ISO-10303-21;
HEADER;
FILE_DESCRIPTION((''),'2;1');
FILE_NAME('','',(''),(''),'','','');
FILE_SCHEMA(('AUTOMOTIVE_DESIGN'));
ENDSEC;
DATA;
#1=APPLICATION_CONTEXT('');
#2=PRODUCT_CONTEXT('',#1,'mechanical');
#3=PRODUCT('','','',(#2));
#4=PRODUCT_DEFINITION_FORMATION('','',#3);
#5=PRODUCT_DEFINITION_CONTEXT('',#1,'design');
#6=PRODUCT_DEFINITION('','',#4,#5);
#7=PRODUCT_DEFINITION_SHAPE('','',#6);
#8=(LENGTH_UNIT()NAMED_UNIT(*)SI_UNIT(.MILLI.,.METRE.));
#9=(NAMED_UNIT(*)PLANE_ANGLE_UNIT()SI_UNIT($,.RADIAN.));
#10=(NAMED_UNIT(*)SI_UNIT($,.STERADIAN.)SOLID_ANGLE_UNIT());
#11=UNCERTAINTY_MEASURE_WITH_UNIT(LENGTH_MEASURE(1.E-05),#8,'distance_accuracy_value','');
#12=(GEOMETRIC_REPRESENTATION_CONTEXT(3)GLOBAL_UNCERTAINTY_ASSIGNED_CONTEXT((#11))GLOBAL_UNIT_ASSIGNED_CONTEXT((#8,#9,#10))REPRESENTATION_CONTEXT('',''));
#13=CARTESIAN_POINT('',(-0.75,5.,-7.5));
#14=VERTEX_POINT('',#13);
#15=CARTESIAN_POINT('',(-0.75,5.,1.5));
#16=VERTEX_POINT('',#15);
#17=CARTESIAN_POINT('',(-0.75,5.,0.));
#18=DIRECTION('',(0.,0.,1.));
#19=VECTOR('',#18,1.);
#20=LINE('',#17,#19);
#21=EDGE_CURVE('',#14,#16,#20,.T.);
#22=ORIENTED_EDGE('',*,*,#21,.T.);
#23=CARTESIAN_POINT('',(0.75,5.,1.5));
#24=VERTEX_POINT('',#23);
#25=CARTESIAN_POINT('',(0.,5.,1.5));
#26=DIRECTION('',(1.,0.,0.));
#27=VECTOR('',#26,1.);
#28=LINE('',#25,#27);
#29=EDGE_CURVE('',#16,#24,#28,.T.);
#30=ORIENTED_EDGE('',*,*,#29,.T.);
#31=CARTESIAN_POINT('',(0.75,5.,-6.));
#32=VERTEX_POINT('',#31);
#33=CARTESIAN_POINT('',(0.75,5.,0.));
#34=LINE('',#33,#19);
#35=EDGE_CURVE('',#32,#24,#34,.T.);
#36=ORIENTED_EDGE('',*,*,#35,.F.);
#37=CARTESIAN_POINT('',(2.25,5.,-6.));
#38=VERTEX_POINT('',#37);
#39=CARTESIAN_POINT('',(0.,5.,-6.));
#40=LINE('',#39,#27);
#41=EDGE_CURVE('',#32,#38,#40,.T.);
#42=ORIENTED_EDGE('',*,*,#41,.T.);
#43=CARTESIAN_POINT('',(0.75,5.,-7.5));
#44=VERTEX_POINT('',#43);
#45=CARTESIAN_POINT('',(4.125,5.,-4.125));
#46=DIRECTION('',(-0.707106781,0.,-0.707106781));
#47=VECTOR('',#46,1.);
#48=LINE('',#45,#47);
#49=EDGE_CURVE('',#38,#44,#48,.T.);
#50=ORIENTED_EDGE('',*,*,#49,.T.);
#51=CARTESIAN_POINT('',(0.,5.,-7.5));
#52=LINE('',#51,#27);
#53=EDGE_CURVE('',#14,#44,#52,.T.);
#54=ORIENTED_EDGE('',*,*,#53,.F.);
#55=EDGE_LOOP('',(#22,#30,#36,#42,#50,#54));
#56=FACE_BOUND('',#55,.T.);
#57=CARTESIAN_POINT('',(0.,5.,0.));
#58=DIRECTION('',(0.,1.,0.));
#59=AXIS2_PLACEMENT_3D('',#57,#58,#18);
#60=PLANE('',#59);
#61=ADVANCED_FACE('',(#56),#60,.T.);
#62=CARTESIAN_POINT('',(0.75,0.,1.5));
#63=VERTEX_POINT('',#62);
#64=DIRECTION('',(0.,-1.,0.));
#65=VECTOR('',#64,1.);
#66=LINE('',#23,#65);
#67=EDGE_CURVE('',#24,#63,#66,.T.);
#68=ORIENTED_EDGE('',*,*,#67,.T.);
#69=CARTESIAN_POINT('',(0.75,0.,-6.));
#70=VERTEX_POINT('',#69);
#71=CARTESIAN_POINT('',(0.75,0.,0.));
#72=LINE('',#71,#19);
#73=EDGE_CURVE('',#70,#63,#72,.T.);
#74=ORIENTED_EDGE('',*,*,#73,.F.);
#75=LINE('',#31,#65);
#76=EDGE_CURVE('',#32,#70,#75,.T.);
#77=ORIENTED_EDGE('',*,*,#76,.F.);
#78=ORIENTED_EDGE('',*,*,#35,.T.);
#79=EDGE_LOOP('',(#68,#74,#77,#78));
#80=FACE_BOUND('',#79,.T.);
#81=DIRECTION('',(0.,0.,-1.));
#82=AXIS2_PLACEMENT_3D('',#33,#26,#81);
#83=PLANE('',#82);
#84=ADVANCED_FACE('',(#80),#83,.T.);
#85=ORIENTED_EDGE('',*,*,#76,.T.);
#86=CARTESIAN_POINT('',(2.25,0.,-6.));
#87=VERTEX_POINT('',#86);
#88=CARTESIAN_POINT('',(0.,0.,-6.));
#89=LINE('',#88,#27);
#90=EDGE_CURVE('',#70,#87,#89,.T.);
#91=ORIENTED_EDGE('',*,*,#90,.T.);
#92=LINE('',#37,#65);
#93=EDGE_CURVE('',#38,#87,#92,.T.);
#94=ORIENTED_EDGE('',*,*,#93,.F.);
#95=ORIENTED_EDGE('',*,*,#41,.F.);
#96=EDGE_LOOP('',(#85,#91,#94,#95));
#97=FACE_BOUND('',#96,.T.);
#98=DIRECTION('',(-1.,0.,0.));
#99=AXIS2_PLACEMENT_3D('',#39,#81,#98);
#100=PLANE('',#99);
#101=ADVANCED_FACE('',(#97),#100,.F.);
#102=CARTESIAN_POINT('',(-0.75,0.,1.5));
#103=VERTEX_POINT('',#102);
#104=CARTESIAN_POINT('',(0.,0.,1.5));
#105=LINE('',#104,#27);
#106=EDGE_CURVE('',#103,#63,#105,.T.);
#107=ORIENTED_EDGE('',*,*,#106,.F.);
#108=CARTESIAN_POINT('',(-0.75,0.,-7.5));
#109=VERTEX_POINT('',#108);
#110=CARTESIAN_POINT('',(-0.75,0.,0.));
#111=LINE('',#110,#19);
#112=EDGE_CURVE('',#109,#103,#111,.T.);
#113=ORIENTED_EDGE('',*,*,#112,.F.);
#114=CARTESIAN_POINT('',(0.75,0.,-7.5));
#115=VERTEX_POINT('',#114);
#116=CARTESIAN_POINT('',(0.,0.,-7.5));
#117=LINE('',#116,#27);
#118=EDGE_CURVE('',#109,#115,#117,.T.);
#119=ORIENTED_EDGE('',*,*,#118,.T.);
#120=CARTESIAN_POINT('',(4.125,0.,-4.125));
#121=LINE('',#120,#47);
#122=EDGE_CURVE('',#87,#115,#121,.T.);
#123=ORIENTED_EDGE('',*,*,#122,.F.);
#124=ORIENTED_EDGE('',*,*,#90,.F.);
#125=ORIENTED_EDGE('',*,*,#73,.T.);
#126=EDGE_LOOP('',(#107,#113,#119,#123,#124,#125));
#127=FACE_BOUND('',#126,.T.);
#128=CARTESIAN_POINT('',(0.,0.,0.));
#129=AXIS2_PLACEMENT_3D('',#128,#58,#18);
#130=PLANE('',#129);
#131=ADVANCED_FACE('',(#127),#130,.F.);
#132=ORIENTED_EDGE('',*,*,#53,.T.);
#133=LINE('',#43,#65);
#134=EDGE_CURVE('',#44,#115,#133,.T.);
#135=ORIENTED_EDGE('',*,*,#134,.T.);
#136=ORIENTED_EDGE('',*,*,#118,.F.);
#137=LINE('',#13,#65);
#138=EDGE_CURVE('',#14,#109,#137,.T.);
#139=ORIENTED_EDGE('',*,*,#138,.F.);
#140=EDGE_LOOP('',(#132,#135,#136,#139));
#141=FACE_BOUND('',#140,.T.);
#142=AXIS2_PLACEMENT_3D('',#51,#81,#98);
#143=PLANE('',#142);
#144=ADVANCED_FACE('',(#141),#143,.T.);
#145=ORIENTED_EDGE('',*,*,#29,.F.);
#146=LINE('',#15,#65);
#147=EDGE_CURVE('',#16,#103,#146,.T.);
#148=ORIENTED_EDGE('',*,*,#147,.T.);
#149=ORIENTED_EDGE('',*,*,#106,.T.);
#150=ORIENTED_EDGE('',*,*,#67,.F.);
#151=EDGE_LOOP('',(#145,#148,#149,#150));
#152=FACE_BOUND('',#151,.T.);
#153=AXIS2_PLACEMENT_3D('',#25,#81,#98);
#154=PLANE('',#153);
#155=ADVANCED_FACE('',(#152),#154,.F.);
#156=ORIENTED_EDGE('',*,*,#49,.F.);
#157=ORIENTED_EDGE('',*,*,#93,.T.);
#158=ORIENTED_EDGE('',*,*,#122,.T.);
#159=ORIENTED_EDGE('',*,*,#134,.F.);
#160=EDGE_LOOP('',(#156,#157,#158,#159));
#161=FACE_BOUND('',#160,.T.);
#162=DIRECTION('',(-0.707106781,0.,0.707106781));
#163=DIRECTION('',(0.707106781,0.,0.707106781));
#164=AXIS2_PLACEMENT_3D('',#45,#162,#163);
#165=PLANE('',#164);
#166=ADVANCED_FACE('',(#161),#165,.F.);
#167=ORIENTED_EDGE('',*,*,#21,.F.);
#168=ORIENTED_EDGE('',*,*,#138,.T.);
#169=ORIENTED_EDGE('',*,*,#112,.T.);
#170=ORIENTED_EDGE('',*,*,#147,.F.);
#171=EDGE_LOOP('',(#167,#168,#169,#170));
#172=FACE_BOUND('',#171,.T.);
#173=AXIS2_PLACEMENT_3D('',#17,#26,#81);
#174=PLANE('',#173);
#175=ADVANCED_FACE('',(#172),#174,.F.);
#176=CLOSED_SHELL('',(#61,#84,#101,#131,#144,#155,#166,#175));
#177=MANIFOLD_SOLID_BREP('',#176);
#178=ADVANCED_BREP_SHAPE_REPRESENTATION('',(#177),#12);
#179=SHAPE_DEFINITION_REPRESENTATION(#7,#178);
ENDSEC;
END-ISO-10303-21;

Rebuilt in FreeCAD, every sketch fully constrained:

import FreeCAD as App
import Part
import Sketcher
from FreeCAD import Vector
Q = App.Units.Quantity

doc = App.newDocument("Part")
body = doc.addObject("PartDesign::Body", "Body")

sketch1 = doc.addObject("Sketcher::SketchObject", "Sketch")
body.addObject(sketch1)
sketch1.AttachmentSupport = (doc.XZ_Plane, [""])
sketch1.MapMode = "FlatFace"
sketch1.addGeometry(Part.LineSegment(Vector(-0.8, 1.5, 0), Vector(0.8, 1.5, 0)), False)
sketch1.addGeometry(Part.LineSegment(Vector(0.8, 1.5, 0), Vector(0.8, -6, 0)), False)
sketch1.addGeometry(Part.LineSegment(Vector(0.8, -6, 0), Vector(2.2, -6, 0)), False)
sketch1.addGeometry(Part.LineSegment(Vector(2.2, -6, 0), Vector(0.8, -7.5, 0)), False)
sketch1.addGeometry(Part.LineSegment(Vector(0.8, -7.5, 0), Vector(-0.8, -7.5, 0)), False)
sketch1.addGeometry(Part.LineSegment(Vector(-0.8, -7.5, 0), Vector(-0.8, 1.5, 0)), False)
sketch1.addConstraint(Sketcher.Constraint("Coincident", 0, 2, 1, 1))
sketch1.addConstraint(Sketcher.Constraint("Coincident", 1, 2, 2, 1))
sketch1.addConstraint(Sketcher.Constraint("Coincident", 2, 2, 3, 1))
sketch1.addConstraint(Sketcher.Constraint("Coincident", 3, 2, 4, 1))
sketch1.addConstraint(Sketcher.Constraint("Coincident", 4, 2, 5, 1))
sketch1.addConstraint(Sketcher.Constraint("Coincident", 5, 2, 0, 1))
sketch1.addConstraint(Sketcher.Constraint("Horizontal", 0))
sketch1.addConstraint(Sketcher.Constraint("Vertical", 1))
sketch1.addConstraint(Sketcher.Constraint("Horizontal", 2))
sketch1.addConstraint(Sketcher.Constraint("Horizontal", 4))
sketch1.addConstraint(Sketcher.Constraint("Vertical", 5))
sketch1.addConstraint(Sketcher.Constraint("Vertical", 1, 2, 3, 2))
sketch1.addConstraint(Sketcher.Constraint("Equal", 0, 2))
sketch1.addConstraint(Sketcher.Constraint("DistanceY", 5, 1, 5, 2, Q("9 mm")))
sketch1.addConstraint(Sketcher.Constraint("Angle", 3, Q("-135 deg")))
sketch1.addConstraint(Sketcher.Constraint("DistanceX", 0, 1, 0, 2, Q("1.5 mm")))
sketch1.addConstraint(Sketcher.Constraint("DistanceY", 1, 2, -1, 1, Q("6 mm")))
sketch1.addConstraint(Sketcher.Constraint("DistanceX", -1, 1, 0, 2, Q("0.75 mm")))
pad1 = doc.addObject("PartDesign::Pad", "Pad")
body.addObject(pad1)
pad1.Profile = sketch1
pad1.Length = 5
pad1.Reversed = True

doc.recompute()
